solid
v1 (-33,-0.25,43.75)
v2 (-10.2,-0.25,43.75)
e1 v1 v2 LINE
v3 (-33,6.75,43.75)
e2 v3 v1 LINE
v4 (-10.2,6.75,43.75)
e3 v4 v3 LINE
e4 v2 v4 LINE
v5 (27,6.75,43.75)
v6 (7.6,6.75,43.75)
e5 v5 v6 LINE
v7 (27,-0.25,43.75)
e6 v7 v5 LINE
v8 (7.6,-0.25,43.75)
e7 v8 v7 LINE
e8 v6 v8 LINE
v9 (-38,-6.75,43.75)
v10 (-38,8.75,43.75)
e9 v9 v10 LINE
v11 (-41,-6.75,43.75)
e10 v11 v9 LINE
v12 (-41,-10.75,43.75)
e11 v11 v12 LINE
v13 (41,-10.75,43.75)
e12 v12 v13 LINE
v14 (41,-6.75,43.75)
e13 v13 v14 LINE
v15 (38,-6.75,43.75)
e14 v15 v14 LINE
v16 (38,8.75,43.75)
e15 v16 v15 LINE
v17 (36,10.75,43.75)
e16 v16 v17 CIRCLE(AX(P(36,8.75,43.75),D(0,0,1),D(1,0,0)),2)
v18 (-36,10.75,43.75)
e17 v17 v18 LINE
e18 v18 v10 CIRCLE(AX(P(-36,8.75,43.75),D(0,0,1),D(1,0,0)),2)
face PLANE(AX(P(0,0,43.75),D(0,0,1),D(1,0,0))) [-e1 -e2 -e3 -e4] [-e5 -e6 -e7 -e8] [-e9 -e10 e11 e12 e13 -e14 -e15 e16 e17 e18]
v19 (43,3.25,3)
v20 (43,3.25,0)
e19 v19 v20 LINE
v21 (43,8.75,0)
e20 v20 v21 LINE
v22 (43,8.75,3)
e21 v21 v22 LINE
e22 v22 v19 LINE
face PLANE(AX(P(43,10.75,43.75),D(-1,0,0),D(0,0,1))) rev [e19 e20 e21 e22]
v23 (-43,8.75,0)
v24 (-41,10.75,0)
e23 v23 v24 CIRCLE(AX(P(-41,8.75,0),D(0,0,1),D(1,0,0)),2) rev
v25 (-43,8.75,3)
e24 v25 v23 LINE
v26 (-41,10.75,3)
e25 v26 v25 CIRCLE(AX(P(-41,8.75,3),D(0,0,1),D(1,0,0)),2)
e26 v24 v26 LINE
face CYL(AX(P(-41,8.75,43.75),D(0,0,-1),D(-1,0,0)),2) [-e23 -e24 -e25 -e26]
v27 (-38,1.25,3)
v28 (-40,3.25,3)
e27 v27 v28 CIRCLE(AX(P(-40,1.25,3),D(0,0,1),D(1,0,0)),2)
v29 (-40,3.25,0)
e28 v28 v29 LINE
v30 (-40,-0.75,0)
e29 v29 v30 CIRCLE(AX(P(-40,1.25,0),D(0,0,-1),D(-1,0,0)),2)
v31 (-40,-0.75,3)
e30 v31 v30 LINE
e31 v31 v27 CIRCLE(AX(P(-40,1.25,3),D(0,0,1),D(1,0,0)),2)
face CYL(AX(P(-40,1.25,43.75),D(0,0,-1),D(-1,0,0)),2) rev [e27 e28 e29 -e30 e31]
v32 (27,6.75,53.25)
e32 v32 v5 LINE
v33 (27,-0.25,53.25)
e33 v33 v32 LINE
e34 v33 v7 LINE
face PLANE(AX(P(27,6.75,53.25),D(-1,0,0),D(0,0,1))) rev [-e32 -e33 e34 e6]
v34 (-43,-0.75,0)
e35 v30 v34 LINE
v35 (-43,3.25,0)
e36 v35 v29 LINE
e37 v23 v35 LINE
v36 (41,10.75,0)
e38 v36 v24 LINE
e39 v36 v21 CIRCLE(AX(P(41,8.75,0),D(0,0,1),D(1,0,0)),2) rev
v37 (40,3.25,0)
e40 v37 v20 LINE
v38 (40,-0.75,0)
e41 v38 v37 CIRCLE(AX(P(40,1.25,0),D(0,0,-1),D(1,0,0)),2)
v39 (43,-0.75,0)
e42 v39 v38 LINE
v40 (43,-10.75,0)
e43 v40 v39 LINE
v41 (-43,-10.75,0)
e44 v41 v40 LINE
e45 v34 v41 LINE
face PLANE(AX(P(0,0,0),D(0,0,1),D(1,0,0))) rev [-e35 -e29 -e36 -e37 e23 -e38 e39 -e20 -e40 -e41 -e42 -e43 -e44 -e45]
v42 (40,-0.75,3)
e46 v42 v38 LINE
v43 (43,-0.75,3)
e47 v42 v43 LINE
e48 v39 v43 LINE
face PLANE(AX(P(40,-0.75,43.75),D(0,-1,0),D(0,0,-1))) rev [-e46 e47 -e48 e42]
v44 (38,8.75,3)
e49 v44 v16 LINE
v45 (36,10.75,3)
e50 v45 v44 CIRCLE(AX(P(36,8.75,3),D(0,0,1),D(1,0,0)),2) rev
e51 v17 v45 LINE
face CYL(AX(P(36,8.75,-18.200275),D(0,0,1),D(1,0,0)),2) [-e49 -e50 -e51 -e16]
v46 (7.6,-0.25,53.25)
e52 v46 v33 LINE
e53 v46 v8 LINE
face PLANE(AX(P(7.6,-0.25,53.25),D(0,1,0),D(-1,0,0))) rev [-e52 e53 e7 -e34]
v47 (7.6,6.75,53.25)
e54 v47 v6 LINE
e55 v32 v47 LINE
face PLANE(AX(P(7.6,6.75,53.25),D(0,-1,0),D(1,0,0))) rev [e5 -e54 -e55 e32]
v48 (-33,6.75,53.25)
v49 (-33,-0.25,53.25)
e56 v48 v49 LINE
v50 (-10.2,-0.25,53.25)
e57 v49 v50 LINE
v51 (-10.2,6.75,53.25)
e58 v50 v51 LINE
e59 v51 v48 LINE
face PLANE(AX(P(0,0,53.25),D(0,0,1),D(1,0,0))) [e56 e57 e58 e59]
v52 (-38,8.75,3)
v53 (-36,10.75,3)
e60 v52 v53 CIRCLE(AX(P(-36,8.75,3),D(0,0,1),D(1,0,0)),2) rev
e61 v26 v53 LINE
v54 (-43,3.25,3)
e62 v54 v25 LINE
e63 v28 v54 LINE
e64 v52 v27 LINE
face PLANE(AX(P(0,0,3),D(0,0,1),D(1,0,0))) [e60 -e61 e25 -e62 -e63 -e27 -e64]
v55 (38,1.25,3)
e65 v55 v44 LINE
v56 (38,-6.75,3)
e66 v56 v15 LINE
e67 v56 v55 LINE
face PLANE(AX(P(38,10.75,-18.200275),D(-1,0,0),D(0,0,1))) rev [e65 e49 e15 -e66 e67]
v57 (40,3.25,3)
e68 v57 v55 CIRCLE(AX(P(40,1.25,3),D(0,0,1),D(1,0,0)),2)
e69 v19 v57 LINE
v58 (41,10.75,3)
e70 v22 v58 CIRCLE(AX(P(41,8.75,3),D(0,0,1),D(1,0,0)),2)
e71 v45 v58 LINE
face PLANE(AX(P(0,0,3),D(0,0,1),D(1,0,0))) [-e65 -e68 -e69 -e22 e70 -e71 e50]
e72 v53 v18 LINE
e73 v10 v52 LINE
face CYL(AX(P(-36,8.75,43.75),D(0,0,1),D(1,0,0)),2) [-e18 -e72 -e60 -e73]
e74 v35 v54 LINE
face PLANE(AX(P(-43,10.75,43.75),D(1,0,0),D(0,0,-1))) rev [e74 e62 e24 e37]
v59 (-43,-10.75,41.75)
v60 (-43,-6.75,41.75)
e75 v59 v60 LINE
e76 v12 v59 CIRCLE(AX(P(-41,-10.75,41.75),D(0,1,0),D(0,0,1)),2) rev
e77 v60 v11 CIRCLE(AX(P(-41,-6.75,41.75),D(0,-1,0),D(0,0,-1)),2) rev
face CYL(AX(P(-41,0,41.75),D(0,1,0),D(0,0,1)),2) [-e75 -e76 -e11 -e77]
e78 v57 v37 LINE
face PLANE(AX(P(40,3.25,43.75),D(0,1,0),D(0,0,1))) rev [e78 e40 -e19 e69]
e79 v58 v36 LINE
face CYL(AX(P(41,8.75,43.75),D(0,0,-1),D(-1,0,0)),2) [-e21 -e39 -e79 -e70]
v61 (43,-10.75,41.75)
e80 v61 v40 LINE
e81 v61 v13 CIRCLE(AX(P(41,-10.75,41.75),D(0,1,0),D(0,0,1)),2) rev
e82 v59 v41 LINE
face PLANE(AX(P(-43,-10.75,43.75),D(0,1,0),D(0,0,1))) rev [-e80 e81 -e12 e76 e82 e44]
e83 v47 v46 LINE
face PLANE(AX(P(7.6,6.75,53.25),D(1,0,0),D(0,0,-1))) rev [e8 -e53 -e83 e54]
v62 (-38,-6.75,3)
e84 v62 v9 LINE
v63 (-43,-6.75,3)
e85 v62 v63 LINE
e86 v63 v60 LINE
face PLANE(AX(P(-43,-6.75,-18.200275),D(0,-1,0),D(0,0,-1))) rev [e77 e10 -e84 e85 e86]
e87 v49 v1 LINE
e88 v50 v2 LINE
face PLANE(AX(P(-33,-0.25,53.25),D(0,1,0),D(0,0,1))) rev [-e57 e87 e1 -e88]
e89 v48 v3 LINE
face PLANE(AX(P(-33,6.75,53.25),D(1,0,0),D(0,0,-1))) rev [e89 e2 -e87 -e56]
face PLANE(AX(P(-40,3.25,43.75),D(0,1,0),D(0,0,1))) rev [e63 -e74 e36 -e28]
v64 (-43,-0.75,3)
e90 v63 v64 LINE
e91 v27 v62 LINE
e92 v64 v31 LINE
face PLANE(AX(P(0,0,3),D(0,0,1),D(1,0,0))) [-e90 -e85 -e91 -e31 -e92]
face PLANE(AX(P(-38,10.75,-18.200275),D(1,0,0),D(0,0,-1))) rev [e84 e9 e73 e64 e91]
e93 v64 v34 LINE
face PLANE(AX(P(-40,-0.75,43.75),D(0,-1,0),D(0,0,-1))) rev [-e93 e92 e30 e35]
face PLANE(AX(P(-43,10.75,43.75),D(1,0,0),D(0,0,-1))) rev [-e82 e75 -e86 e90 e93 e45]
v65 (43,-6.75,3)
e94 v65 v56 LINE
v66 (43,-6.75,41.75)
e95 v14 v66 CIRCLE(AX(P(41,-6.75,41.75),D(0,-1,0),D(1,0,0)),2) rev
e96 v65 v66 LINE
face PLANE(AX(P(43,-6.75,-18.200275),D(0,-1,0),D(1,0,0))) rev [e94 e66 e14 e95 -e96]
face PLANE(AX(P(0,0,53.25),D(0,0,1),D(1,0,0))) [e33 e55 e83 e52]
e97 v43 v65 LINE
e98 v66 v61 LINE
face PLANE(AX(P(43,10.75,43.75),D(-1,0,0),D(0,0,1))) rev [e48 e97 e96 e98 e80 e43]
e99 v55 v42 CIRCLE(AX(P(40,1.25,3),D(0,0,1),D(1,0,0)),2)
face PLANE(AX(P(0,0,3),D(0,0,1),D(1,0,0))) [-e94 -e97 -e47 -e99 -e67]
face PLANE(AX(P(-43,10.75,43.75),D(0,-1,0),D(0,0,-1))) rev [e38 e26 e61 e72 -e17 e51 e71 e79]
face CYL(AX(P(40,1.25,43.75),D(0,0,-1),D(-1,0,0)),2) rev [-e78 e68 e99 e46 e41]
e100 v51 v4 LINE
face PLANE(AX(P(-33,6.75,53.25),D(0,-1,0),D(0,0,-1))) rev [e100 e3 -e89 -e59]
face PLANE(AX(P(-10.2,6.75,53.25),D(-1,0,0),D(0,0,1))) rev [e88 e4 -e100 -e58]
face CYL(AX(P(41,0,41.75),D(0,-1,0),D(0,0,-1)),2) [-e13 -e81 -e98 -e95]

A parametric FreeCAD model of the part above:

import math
import FreeCAD as App
import Part
import Sketcher
from FreeCAD import Vector
Q = App.Units.Quantity


def edges_at(feature, points):
    """Names of the edges that pass closest to the given points."""
    edges = feature.Shape.Edges
    near = lambda p: min(range(len(edges)), key=lambda i: edges[i].distToShape(Part.Vertex(*p))[0])
    return sorted({f"Edge{near(p) + 1}" for p in points})

doc = App.newDocument("Part")
body = doc.addObject("PartDesign::Body", "Body")

# Sketch on XY plane
sketch1 = doc.addObject("Sketcher::SketchObject", "Sketch")
body.addObject(sketch1)
sketch1.AttachmentSupport = (doc.XY_Plane, [""])
sketch1.MapMode = "FlatFace"
sketch1.addGeometry(Part.LineSegment(Vector(-43, 11, 0), Vector(-43, -11, 0)), False)
sketch1.addGeometry(Part.LineSegment(Vector(-43, -11, 0), Vector(43, -11, 0)), False)
sketch1.addGeometry(Part.LineSegment(Vector(43, -11, 0), Vector(43, 11, 0)), False)
sketch1.addGeometry(Part.LineSegment(Vector(43, 11, 0), Vector(-43, 11, 0)), False)
sketch1.addConstraint(Sketcher.Constraint("Coincident", 0, 2, 1, 1))
sketch1.addConstraint(Sketcher.Constraint("Coincident", 1, 2, 2, 1))
sketch1.addConstraint(Sketcher.Constraint("Coincident", 2, 2, 3, 1))
sketch1.addConstraint(Sketcher.Constraint("Coincident", 3, 2, 0, 1))
sketch1.addConstraint(Sketcher.Constraint("Vertical", 0))
sketch1.addConstraint(Sketcher.Constraint("Horizontal", 1))
sketch1.addConstraint(Sketcher.Constraint("Vertical", 2))
sketch1.addConstraint(Sketcher.Constraint("Horizontal", 3))
sketch1.addConstraint(Sketcher.Constraint("Symmetric", 0, 2, 2, 2, -1, 1))
sketch1.addConstraint(Sketcher.Constraint("DistanceX", 1, 1, 1, 2, Q("86 mm")))
sketch1.addConstraint(Sketcher.Constraint("DistanceY", 0, 2, 0, 1, Q("21.5 mm")))
pad1 = doc.addObject("PartDesign::Pad", "Pad")
body.addObject(pad1)
pad1.Profile = sketch1
pad1.Length = 43.75

# Sketch on XY plane
sketch2 = doc.addObject("Sketcher::SketchObject", "Sketch001")
body.addObject(sketch2)
sketch2.AttachmentSupport = (doc.XY_Plane, [""])
sketch2.MapMode = "FlatFace"
sketch2.AttachmentOffset = App.Placement(Vector(0, 0, 43.75), App.Rotation())
sketch2.addGeometry(Part.LineSegment(Vector(-43, 11, 0), Vector(-43, -7, 0)), False)
sketch2.addGeometry(Part.LineSegment(Vector(-43, -7, 0), Vector(-38, -7, 0)), False)
sketch2.addGeometry(Part.LineSegment(Vector(-38, -7, 0), Vector(-38, 11, 0)), False)
sketch2.addGeometry(Part.LineSegment(Vector(-38, 11, 0), Vector(-43, 11, 0)), False)
sketch2.addGeometry(Part.LineSegment(Vector(38, 11, 0), Vector(38, -7, 0)), False)
sketch2.addGeometry(Part.LineSegment(Vector(38, -7, 0), Vector(43, -7, 0)), False)
sketch2.addGeometry(Part.LineSegment(Vector(43, -7, 0), Vector(43, 11, 0)), False)
sketch2.addGeometry(Part.LineSegment(Vector(43, 11, 0), Vector(38, 11, 0)), False)
sketch2.addConstraint(Sketcher.Constraint("Coincident", 0, 2, 1, 1))
sketch2.addConstraint(Sketcher.Constraint("Coincident", 1, 2, 2, 1))
sketch2.addConstraint(Sketcher.Constraint("Coincident", 2, 2, 3, 1))
sketch2.addConstraint(Sketcher.Constraint("Coincident", 3, 2, 0, 1))
sketch2.addConstraint(Sketcher.Constraint("Coincident", 4, 2, 5, 1))
sketch2.addConstraint(Sketcher.Constraint("Coincident", 5, 2, 6, 1))
sketch2.addConstraint(Sketcher.Constraint("Coincident", 6, 2, 7, 1))
sketch2.addConstraint(Sketcher.Constraint("Coincident", 7, 2, 4, 1))
sketch2.addConstraint(Sketcher.Constraint("Vertical", 0))
sketch2.addConstraint(Sketcher.Constraint("Horizontal", 1))
sketch2.addConstraint(Sketcher.Constraint("Vertical", 2))
sketch2.addConstraint(Sketcher.Constraint("Horizontal", 3))
sketch2.addConstraint(Sketcher.Constraint("Vertical", 4))
sketch2.addConstraint(Sketcher.Constraint("Horizontal", 5))
sketch2.addConstraint(Sketcher.Constraint("Vertical", 6))
sketch2.addConstraint(Sketcher.Constraint("Horizontal", 7))
sketch2.addConstraint(Sketcher.Constraint("Symmetric", 1, 2, 4, 2, -2))
sketch2.addConstraint(Sketcher.Constraint("Symmetric", 3, 2, 6, 2, -2))
sketch2.addConstraint(Sketcher.Constraint("DistanceX", 1, 1, 1, 2, Q("5 mm")))
sketch2.addConstraint(Sketcher.Constraint("DistanceY", 0, 2, 0, 1, Q("17.5 mm")))
sketch2.addConstraint(Sketcher.Constraint("DistanceX", 0, 2, -1, 1, Q("43 mm")))
sketch2.addConstraint(Sketcher.Constraint("DistanceY", 0, 2, -1, 1, Q("6.75 mm")))
pocket1 = doc.addObject("PartDesign::Pocket", "Pocket")
body.addObject(pocket1)
pocket1.Profile = sketch2
pocket1.Length = 40.75

# Sketch on XY plane
sketch3 = doc.addObject("Sketcher::SketchObject", "Sketch002")
body.addObject(sketch3)
sketch3.AttachmentSupport = (doc.XY_Plane, [""])
sketch3.MapMode = "FlatFace"
sketch3.addGeometry(Part.LineSegment(Vector(-47.7, 3.2, 0), Vector(-40, 3.2, 0)), False)
sketch3.addGeometry(Part.ArcOfCircle(Part.Circle(Vector(-40, 1.2, 0), Vector(0, 0, 1), 2), math.radians(-90), math.radians(90)), False)
sketch3.addGeometry(Part.LineSegment(Vector(-40, -0.8, 0), Vector(-47.7, -0.8, 0)), False)
sketch3.addGeometry(Part.ArcOfCircle(Part.Circle(Vector(-47.7, 1.2, 0), Vector(0, 0, 1), 2), math.radians(90), math.radians(270)), False)
sketch3.addGeometry(Part.LineSegment(Vector(40, 3.2, 0), Vector(47.7, 3.2, 0)), False)
sketch3.addGeometry(Part.ArcOfCircle(Part.Circle(Vector(47.7, 1.2, 0), Vector(0, 0, 1), 2), math.radians(-90), math.radians(90)), False)
sketch3.addGeometry(Part.LineSegment(Vector(47.7, -0.8, 0), Vector(40, -0.8, 0)), False)
sketch3.addGeometry(Part.ArcOfCircle(Part.Circle(Vector(40, 1.2, 0), Vector(0, 0, 1), 2), math.radians(90), math.radians(270)), False)
sketch3.addConstraint(Sketcher.Constraint("Tangent", 0, 2, 1, 2))
sketch3.addConstraint(Sketcher.Constraint("Tangent", 1, 1, 2, 1))
sketch3.addConstraint(Sketcher.Constraint("Tangent", 2, 2, 3, 2))
sketch3.addConstraint(Sketcher.Constraint("Tangent", 3, 1, 0, 1))
sketch3.addConstraint(Sketcher.Constraint("Tangent", 4, 2, 5, 2))
sketch3.addConstraint(Sketcher.Constraint("Tangent", 5, 1, 6, 1))
sketch3.addConstraint(Sketcher.Constraint("Tangent", 6, 2, 7, 2))
sketch3.addConstraint(Sketcher.Constraint("Tangent", 7, 1, 4, 1))
sketch3.addConstraint(Sketcher.Constraint("Horizontal", 0))
sketch3.addConstraint(Sketcher.Constraint("Horizontal", 2))
sketch3.addConstraint(Sketcher.Constraint("Horizontal", 4))
sketch3.addConstraint(Sketcher.Constraint("Horizontal", 6))
sketch3.addConstraint(Sketcher.Constraint("Equal", 3, 5))
sketch3.addConstraint(Sketcher.Constraint("Symmetric", 3, 3, 5, 3, -2))
sketch3.addConstraint(Sketcher.Constraint("Equal", 2, 4))
sketch3.addConstraint(Sketcher.Constraint("Radius", 1, Q("2 mm")))
sketch3.addConstraint(Sketcher.Constraint("DistanceX", 1, 3, -1, 1, Q("40 mm")))
sketch3.addConstraint(Sketcher.Constraint("DistanceY", -1, 1, 1, 3, Q("1.25 mm")))
sketch3.addConstraint(Sketcher.Constraint("DistanceX", 0, 1, 0, 2, Q("7.671145 mm")))
pocket2 = doc.addObject("PartDesign::Pocket", "Pocket001")
body.addObject(pocket2)
pocket2.Profile = sketch3
pocket2.Type = "ThroughAll"
pocket2.Reversed = True
doc.recompute()

fillet = doc.addObject("PartDesign::Fillet", "Fillet")
body.addObject(fillet)
fillet.Base = (pocket2, edges_at(pocket2, [
    (-43, -8.75, 43.75),
    (-43, 10.75, 1.5),
    (43, 10.75, 1.5),
    (-38, 10.75, 23.375),
    (38, 10.75, 23.375),
    (43, -8.75, 43.75),
]))
fillet.Radius = 2

# Sketch on XY plane
sketch4 = doc.addObject("Sketcher::SketchObject", "Sketch003")
body.addObject(sketch4)
sketch4.AttachmentSupport = (doc.XY_Plane, [""])
sketch4.MapMode = "FlatFace"
sketch4.AttachmentOffset = App.Placement(Vector(0, 0, 43.75), App.Rotation())
sketch4.addGeometry(Part.LineSegment(Vector(-33, 7, 0), Vector(-33, 0, 0)), False)
sketch4.addGeometry(Part.LineSegment(Vector(-33, 0, 0), Vector(-10, 0, 0)), False)
sketch4.addGeometry(Part.LineSegment(Vector(-10, 0, 0), Vector(-10, 7, 0)), False)
sketch4.addGeometry(Part.LineSegment(Vector(-10, 7, 0), Vector(-33, 7, 0)), False)
sketch4.addGeometry(Part.LineSegment(Vector(8, 7, 0), Vector(8, 0, 0)), False)
sketch4.addGeometry(Part.LineSegment(Vector(8, 0, 0), Vector(27, 0, 0)), False)
sketch4.addGeometry(Part.LineSegment(Vector(27, 0, 0), Vector(27, 7, 0)), False)
sketch4.addGeometry(Part.LineSegment(Vector(27, 7, 0), Vector(8, 7, 0)), False)
sketch4.addConstraint(Sketcher.Constraint("Coincident", 0, 2, 1, 1))
sketch4.addConstraint(Sketcher.Constraint("Coincident", 1, 2, 2, 1))
sketch4.addConstraint(Sketcher.Constraint("Coincident", 2, 2, 3, 1))
sketch4.addConstraint(Sketcher.Constraint("Coincident", 3, 2, 0, 1))
sketch4.addConstraint(Sketcher.Constraint("Coincident", 4, 2, 5, 1))
sketch4.addConstraint(Sketcher.Constraint("Coincident", 5, 2, 6, 1))
sketch4.addConstraint(Sketcher.Constraint("Coincident", 6, 2, 7, 1))
sketch4.addConstraint(Sketcher.Constraint("Coincident", 7, 2, 4, 1))
sketch4.addConstraint(Sketcher.Constraint("Vertical", 0))
sketch4.addConstraint(Sketcher.Constraint("Horizontal", 1))
sketch4.addConstraint(Sketcher.Constraint("Vertical", 2))
sketch4.addConstraint(Sketcher.Constraint("Horizontal", 3))
sketch4.addConstraint(Sketcher.Constraint("Vertical", 4))
sketch4.addConstraint(Sketcher.Constraint("Horizontal", 5))
sketch4.addConstraint(Sketcher.Constraint("Vertical", 6))
sketch4.addConstraint(Sketcher.Constraint("Horizontal", 7))
sketch4.addConstraint(Sketcher.Constraint("Horizontal", 1, 2, 4, 2))
sketch4.addConstraint(Sketcher.Constraint("Horizontal", 3, 2, 6, 2))
sketch4.addConstraint(Sketcher.Constraint("DistanceY", 0, 2, 0, 1, Q("7 mm")))
sketch4.addConstraint(Sketcher.Constraint("DistanceX", 1, 1, 1, 2, Q("22.8 mm")))
sketch4.addConstraint(Sketcher.Constraint("DistanceX", 5, 1, 5, 2, Q("19.4 mm")))
sketch4.addConstraint(Sketcher.Constraint("DistanceX", 0, 2, -1, 1, Q("33 mm")))
sketch4.addConstraint(Sketcher.Constraint("DistanceX", -1, 1, 5, 2, Q("27 mm")))
sketch4.addConstraint(Sketcher.Constraint("DistanceY", 0, 2, -1, 1, Q("0.25 mm")))
pad2 = doc.addObject("PartDesign::Pad", "Pad001")
body.addObject(pad2)
pad2.Profile = sketch4
pad2.Length = 9.5

doc.recompute()
